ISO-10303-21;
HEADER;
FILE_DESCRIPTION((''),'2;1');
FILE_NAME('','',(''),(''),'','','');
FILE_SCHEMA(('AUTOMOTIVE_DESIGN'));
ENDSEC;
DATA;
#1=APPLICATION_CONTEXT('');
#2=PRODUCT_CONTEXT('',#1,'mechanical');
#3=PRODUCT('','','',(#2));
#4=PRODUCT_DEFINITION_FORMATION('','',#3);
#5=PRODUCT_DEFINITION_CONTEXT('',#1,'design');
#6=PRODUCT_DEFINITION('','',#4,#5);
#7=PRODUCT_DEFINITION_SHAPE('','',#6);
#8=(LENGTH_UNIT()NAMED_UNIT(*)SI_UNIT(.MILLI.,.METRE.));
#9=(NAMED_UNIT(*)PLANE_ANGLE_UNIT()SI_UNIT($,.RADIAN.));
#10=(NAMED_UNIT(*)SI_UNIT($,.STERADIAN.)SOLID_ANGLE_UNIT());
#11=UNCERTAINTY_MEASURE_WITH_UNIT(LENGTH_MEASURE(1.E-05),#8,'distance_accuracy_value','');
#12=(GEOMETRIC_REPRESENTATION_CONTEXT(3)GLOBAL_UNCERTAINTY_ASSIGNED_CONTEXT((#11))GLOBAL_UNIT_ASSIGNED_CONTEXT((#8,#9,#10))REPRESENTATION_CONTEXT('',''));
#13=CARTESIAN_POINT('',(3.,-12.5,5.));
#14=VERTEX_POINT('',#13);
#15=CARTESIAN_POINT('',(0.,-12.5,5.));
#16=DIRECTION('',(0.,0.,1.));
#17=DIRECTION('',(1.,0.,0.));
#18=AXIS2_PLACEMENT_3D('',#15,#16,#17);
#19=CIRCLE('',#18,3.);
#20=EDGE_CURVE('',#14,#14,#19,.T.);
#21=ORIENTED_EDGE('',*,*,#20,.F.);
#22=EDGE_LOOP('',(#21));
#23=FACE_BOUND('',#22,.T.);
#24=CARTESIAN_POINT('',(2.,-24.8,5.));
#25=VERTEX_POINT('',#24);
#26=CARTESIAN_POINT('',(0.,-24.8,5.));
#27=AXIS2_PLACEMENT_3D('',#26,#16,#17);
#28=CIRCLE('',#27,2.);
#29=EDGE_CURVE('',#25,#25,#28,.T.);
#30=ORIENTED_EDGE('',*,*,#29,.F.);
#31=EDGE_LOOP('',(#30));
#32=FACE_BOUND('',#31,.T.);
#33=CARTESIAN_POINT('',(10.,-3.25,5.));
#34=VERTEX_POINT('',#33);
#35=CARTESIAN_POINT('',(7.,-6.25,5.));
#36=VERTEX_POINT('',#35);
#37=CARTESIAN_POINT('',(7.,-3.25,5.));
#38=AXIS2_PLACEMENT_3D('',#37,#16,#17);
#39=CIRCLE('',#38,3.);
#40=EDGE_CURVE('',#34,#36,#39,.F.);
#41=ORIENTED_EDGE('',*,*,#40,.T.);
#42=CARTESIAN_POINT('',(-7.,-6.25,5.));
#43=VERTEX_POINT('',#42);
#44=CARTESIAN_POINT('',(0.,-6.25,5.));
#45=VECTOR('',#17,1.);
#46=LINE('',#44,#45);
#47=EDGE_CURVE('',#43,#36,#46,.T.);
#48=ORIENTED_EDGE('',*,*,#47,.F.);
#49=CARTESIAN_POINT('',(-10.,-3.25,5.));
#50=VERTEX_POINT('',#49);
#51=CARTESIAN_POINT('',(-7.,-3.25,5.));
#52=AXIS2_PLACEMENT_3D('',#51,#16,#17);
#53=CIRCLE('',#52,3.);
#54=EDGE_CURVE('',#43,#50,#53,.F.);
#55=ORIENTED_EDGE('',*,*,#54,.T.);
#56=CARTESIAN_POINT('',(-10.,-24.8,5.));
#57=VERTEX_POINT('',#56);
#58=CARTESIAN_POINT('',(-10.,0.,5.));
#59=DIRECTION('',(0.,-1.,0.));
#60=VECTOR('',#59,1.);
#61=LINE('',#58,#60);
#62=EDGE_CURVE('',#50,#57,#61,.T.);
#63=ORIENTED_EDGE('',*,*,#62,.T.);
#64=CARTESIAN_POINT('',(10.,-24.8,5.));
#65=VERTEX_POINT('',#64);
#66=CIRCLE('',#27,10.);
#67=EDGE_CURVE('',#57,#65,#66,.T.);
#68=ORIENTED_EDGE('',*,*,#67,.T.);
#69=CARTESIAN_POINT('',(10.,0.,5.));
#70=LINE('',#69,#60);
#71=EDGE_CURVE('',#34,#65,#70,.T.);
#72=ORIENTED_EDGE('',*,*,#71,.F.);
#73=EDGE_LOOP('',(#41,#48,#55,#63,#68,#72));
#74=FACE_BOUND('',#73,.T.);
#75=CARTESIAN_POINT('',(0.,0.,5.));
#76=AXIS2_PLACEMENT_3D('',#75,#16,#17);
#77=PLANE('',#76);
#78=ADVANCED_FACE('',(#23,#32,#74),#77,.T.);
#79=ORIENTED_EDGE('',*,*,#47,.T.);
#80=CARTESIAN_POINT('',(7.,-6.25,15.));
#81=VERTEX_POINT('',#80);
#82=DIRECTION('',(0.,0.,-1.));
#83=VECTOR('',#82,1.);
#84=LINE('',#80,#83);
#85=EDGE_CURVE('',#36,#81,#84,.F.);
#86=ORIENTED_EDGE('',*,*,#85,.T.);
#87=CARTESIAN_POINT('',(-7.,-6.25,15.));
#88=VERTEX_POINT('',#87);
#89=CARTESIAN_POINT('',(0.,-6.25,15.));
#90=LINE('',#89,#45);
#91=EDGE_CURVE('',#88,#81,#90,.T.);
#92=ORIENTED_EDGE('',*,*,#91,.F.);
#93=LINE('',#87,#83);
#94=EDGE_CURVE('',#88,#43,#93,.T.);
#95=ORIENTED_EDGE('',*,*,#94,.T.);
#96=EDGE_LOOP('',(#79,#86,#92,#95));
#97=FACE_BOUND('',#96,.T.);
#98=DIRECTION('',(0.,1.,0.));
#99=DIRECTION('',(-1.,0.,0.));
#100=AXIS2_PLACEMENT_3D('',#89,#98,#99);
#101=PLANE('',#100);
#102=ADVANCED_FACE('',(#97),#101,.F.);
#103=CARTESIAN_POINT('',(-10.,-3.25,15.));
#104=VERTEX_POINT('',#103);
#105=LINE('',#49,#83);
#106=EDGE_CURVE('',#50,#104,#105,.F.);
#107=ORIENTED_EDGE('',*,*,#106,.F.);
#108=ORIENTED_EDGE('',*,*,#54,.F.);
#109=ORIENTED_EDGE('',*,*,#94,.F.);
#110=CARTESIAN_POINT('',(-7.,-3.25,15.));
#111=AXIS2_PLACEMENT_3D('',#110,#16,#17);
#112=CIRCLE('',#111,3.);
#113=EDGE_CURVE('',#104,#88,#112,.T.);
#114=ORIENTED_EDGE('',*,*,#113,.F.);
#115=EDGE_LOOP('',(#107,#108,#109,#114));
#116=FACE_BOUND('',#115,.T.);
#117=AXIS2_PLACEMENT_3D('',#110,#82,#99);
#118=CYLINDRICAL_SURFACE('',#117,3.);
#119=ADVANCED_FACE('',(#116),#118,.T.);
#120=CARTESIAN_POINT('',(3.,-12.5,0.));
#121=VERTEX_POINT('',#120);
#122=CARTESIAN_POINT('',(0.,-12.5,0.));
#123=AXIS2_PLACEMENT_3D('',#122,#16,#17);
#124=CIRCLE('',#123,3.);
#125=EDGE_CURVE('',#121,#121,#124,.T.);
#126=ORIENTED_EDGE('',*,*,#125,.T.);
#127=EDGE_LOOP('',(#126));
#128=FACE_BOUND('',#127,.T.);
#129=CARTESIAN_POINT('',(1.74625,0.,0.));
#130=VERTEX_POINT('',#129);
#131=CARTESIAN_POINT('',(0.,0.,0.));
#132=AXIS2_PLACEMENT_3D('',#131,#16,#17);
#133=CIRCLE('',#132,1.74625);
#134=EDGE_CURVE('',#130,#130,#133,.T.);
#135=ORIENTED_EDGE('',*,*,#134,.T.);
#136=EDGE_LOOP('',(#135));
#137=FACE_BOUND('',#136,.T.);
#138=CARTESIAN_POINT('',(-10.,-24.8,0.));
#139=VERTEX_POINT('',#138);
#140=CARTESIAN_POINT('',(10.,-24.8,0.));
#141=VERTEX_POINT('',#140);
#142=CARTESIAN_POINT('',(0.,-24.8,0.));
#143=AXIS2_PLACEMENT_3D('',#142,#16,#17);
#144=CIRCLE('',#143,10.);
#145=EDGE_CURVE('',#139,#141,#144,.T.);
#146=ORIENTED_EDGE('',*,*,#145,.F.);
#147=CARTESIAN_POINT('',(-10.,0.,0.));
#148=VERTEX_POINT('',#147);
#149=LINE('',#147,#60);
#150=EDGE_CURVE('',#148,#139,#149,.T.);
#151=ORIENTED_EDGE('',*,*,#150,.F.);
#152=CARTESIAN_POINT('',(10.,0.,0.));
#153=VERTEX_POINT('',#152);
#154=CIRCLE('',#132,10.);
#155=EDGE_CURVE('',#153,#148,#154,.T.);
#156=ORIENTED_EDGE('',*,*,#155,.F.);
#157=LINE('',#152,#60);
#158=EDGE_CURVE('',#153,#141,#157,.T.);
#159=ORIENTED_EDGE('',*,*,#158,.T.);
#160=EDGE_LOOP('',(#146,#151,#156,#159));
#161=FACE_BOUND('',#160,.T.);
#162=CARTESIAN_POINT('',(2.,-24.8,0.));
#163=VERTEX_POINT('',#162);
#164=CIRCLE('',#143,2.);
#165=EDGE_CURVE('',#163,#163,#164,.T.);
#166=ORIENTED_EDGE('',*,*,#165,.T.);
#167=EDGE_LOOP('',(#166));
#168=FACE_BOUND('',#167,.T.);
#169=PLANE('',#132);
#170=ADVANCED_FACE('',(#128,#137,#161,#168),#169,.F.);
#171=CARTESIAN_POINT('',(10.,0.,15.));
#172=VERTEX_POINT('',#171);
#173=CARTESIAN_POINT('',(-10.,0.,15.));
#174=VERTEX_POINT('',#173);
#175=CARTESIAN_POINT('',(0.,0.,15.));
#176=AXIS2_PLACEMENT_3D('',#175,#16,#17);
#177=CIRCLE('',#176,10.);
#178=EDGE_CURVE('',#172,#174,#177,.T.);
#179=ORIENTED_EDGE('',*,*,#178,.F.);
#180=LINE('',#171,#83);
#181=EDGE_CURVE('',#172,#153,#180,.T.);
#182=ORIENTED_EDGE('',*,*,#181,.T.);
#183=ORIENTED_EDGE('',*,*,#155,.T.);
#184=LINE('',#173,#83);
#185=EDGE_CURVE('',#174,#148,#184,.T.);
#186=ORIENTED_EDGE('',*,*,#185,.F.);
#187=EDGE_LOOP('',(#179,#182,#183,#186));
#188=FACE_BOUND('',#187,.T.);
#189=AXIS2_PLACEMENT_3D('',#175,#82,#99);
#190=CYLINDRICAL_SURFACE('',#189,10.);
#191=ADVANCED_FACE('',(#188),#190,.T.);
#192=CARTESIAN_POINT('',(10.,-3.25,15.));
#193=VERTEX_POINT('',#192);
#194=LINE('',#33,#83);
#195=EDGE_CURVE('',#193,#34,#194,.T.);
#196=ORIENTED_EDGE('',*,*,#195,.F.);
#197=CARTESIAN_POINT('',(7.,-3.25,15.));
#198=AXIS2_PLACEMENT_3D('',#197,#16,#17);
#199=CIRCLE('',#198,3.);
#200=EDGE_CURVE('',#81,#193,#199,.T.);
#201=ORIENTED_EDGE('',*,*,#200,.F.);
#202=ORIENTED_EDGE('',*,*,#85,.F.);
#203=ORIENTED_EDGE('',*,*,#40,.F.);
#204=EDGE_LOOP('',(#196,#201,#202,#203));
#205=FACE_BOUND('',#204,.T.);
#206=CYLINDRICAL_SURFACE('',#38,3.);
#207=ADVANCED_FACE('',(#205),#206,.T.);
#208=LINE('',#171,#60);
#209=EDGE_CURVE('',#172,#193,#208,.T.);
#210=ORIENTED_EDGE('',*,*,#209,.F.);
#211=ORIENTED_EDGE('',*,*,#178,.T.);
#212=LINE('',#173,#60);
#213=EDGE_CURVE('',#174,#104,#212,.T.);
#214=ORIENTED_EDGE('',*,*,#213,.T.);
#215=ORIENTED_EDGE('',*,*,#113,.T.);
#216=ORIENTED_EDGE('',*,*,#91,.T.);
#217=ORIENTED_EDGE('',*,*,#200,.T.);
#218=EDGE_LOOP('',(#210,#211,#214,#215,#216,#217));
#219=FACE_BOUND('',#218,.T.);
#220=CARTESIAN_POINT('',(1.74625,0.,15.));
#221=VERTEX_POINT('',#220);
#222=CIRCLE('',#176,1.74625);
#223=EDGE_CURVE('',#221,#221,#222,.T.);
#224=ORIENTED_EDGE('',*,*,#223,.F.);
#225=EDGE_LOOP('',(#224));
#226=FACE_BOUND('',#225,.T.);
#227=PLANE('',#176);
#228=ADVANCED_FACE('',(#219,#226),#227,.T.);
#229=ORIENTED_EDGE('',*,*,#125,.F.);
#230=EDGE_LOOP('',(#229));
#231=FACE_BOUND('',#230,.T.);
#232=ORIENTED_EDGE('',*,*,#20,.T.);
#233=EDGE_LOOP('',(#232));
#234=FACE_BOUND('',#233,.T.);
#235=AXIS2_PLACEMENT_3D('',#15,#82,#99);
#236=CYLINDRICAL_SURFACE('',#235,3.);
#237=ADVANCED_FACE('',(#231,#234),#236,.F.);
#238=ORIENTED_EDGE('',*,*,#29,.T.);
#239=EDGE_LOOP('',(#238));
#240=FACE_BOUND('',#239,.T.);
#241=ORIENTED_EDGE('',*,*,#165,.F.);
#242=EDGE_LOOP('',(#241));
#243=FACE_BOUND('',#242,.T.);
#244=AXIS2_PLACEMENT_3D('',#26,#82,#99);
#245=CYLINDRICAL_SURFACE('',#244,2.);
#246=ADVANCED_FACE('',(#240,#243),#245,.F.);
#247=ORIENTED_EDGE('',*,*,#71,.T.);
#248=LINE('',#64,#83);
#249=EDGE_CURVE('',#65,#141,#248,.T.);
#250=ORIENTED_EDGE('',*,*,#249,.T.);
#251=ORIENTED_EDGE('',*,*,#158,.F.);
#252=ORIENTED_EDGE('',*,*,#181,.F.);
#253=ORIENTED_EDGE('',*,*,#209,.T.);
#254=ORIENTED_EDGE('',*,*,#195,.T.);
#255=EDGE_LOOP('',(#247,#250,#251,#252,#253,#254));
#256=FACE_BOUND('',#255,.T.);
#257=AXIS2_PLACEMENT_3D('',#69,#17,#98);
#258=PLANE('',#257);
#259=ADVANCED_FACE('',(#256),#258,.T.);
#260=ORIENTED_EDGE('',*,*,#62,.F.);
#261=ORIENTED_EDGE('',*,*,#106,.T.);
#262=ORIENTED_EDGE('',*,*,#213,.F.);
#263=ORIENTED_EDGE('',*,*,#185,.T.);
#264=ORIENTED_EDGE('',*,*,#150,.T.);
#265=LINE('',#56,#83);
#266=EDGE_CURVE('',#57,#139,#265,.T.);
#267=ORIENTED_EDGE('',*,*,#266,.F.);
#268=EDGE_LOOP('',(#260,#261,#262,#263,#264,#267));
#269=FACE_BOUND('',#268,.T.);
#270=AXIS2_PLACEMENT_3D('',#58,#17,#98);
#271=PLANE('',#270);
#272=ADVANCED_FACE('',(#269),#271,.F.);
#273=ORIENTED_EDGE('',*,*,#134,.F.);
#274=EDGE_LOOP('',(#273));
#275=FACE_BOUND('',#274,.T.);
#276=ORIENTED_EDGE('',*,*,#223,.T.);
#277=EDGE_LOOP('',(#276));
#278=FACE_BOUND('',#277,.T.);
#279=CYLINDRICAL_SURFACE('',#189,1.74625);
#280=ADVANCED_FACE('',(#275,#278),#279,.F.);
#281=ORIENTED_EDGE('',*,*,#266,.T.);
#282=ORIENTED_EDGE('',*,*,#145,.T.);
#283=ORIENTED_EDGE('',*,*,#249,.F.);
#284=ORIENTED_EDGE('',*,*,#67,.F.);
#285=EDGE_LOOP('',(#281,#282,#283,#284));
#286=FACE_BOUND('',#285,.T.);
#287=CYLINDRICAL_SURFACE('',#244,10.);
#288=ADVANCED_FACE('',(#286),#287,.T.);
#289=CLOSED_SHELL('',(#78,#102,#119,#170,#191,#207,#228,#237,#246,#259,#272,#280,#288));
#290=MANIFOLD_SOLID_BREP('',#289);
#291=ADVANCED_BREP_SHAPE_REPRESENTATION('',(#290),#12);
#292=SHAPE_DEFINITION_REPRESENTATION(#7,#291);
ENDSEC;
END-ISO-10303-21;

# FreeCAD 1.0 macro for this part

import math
import FreeCAD as App
import Part
import Sketcher
from FreeCAD import Vector
Q = App.Units.Quantity


def edges_at(feature, points):
    """Names of the edges that pass closest to the given points."""
    edges = feature.Shape.Edges
    near = lambda p: min(range(len(edges)), key=lambda i: edges[i].distToShape(Part.Vertex(*p))[0])
    return sorted({f"Edge{near(p) + 1}" for p in points})

doc = App.newDocument("Part")
params = doc.addObject("Spreadsheet::Sheet", "Params")
for row, (alias, value) in enumerate([
    ("sketch1_diameter", "4 mm"),
    ("sketch1_diameter2", "6 mm"),
    ("sketch1_radius", "10 mm"),
    ("sketch1_height", "18.55 mm"),
    ("pad1_length", "5 mm"),
    ("sketch2_radius", "10 mm"),
    ("sketch2_height", "6.25 mm"),
    ("pad2_length", "15 mm"),
    ("fillet_radius", "3 mm"),
], start=1):
    params.set(f"A{row}", alias)
    params.set(f"B{row}", "=" + value)
    params.setAlias(f"B{row}", alias)

body = doc.addObject("PartDesign::Body", "Body")

# Sketch on XY plane
sketch1 = body.newObject("Sketcher::SketchObject", "Sketch")
sketch1.AttachmentSupport = (doc.getObject("XY_Plane"), [""])
sketch1.MapMode = "FlatFace"
sketch1.addGeometry([
    Part.LineSegment(Vector(10, -24.8, 0), Vector(10, -6.2, 0)),  # 0
    Part.LineSegment(Vector(10, -6.2, 0), Vector(-10, -6.2, 0)),  # 1
    Part.LineSegment(Vector(-10, -6.2, 0), Vector(-10, -24.8, 0)),  # 2
    Part.ArcOfCircle(Part.Circle(Vector(0, -24.8, 0), Vector(0, 0, 1), 10), math.radians(180), math.radians(360)),  # 3
    Part.Circle(Vector(0, -24.8, 0), Vector(0, 0, 1), 2),  # 4
    Part.Circle(Vector(0, -12.5, 0), Vector(0, 0, 1), 3),  # 5
], False)
sketch1.addConstraint([
    Sketcher.Constraint("Coincident", 0, 2, 1, 1),
    Sketcher.Constraint("Coincident", 1, 2, 2, 1),
    Sketcher.Constraint("Tangent", 2, 2, 3, 1),
    Sketcher.Constraint("Tangent", 3, 2, 0, 1),
    Sketcher.Constraint("Vertical", 0),
    Sketcher.Constraint("Horizontal", 1),
    Sketcher.Constraint("Vertical", 2),
    Sketcher.Constraint("Coincident", 4, 3, 3, 3),
    Sketcher.Constraint("PointOnObject", 3, 3, -2),
    Sketcher.Constraint("PointOnObject", 5, 3, -2),
    Sketcher.Constraint("Diameter", 4, Q("4 mm")),
    Sketcher.Constraint("Diameter", 5, Q("6 mm")),
    Sketcher.Constraint("Radius", 3, Q("10 mm")),
    Sketcher.Constraint("DistanceY", 0, 1, 0, 2, Q("18.55 mm")),
    Sketcher.Constraint("DistanceY", 3, 3, -1, 1, Q("24.8 mm")),
    Sketcher.Constraint("DistanceY", 5, 3, -1, 1, Q("12.5 mm")),
])
sketch1.setExpression("Constraints[10]", "Params.sketch1_diameter")
sketch1.setExpression("Constraints[11]", "Params.sketch1_diameter2")
sketch1.setExpression("Constraints[12]", "Params.sketch1_radius")
sketch1.setExpression("Constraints[13]", "Params.sketch1_height")
pad1 = body.newObject("PartDesign::Pad", "Pad")
pad1.Profile = sketch1
pad1.setExpression("Length", "Params.pad1_length")

# Sketch on XY plane
sketch2 = body.newObject("Sketcher::SketchObject", "Sketch001")
sketch2.AttachmentSupport = (doc.getObject("XY_Plane"), [""])
sketch2.MapMode = "FlatFace"
sketch2.addGeometry([
    Part.LineSegment(Vector(10, -6.2, 0), Vector(10, 0, 0)),  # 0
    Part.ArcOfCircle(Part.Circle(Vector(0, 0, 0), Vector(0, 0, 1), 10), math.radians(0), math.radians(180)),  # 1
    Part.LineSegment(Vector(-10, 0, 0), Vector(-10, -6.2, 0)),  # 2
    Part.LineSegment(Vector(-10, -6.2, 0), Vector(10, -6.2, 0)),  # 3
    Part.Circle(Vector(0, 0, 0), Vector(0, 0, 1), 1.7),  # 4
], False)
sketch2.addConstraint([
    Sketcher.Constraint("Tangent", 0, 2, 1, 1),
    Sketcher.Constraint("Tangent", 1, 2, 2, 1),
    Sketcher.Constraint("Coincident", 2, 2, 3, 1),
    Sketcher.Constraint("Coincident", 3, 2, 0, 1),
    Sketcher.Constraint("Vertical", 0),
    Sketcher.Constraint("Vertical", 2),
    Sketcher.Constraint("Horizontal", 3),
    Sketcher.Constraint("Coincident", 1, 3, -1, 1),
    Sketcher.Constraint("Coincident", 4, 3, -1, 1),
    Sketcher.Constraint("Radius", 1, Q("10 mm")),
    Sketcher.Constraint("Diameter", 4, Q("3.4925 mm")),
    Sketcher.Constraint("DistanceY", 0, 1, 0, 2, Q("6.25 mm")),
])
sketch2.setExpression("Constraints[9]", "Params.sketch2_radius")
sketch2.setExpression("Constraints[11]", "Params.sketch2_height")
pad2 = body.newObject("PartDesign::Pad", "Pad001")
pad2.Profile = sketch2
pad2.setExpression("Length", "Params.pad2_length")
doc.recompute()

fillet = body.newObject("PartDesign::Fillet", "Fillet")
fillet.Base = (pad2, edges_at(pad2, [(-10, -6.25, 10), (10, -6.25, 10)]))
fillet.setExpression("Radius", "Params.fillet_radius")

doc.recompute()
